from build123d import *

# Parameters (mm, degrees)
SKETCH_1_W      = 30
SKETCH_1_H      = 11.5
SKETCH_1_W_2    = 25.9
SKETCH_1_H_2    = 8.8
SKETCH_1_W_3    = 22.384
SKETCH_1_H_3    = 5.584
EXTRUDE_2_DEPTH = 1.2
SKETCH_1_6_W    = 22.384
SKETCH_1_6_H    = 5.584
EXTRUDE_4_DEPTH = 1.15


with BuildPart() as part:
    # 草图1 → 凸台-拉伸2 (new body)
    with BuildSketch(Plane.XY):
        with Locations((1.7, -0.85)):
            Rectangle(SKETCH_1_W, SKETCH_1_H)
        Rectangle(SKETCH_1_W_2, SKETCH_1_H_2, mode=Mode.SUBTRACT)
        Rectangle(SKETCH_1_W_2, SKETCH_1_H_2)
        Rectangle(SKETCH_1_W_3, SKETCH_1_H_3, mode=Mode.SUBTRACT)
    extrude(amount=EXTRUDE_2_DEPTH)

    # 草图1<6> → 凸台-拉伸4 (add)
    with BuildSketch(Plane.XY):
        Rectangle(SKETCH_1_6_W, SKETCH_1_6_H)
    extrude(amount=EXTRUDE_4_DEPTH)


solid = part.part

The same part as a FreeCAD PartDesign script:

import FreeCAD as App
import Part
import Sketcher
from FreeCAD import Vector
Q = App.Units.Quantity


def add_polygon(sketch, points):
    """Adds a closed chain of lines whose ends are joined by coincident constraints."""
    first, n = sketch.GeometryCount, len(points)
    for a, b in zip(points, points[1:] + points[:1]):
        sketch.addGeometry(Part.LineSegment(App.Vector(*a, 0), App.Vector(*b, 0)), False)
    for i in range(n):
        sketch.addConstraint(Sketcher.Constraint("Coincident", first + i, 2, first + (i + 1) % n, 1))

doc = App.newDocument("Part")
body = doc.addObject("PartDesign::Body", "Body")

sketch1 = body.newObject("Sketcher::SketchObject", "Sketch")
sketch1.AttachmentSupport = (doc.getObject("XY_Plane"), [""])
sketch1.MapMode = "FlatFace"
add_polygon(sketch1, [(-13, 5), (-13, -7), (17, -7), (17, 5)])
add_polygon(sketch1, [(11, -3), (-11, -3), (-11, 3), (11, 3)])
sketch1.addConstraint(Sketcher.Constraint("Vertical", 0))
sketch1.addConstraint(Sketcher.Constraint("Horizontal", 1))
sketch1.addConstraint(Sketcher.Constraint("Vertical", 2))
sketch1.addConstraint(Sketcher.Constraint("Horizontal", 3))
sketch1.addConstraint(Sketcher.Constraint("Horizontal", 4))
sketch1.addConstraint(Sketcher.Constraint("Vertical", 5))
sketch1.addConstraint(Sketcher.Constraint("Horizontal", 6))
sketch1.addConstraint(Sketcher.Constraint("Vertical", 7))
sketch1.addConstraint(Sketcher.Constraint("Symmetric", 4, 2, 6, 2, -1, 1))
sketch1.addConstraint(Sketcher.Constraint("DistanceX", 1, 1, 1, 2, Q("30 mm")))
sketch1.addConstraint(Sketcher.Constraint("DistanceY", 0, 2, 0, 1, Q("11.5 mm")))
sketch1.addConstraint(Sketcher.Constraint("DistanceX", 0, 2, -1, 1, Q("13.3 mm")))
sketch1.addConstraint(Sketcher.Constraint("DistanceY", 0, 2, -1, 1, Q("6.6 mm")))
sketch1.addConstraint(Sketcher.Constraint("DistanceX", 4, 2, 4, 1, Q("22.384 mm")))
sketch1.addConstraint(Sketcher.Constraint("DistanceY", 5, 1, 5, 2, Q("5.584 mm")))
pad1 = body.newObject("PartDesign::Pad", "Pad")
pad1.Profile = sketch1
pad1.Length = 1.2

sketch2 = body.newObject("Sketcher::SketchObject", "Sketch001")
sketch2.AttachmentSupport = (doc.getObject("XY_Plane"), [""])
sketch2.MapMode = "FlatFace"
add_polygon(sketch2, [(-11, 3), (-11, -3), (11, -3), (11, 3)])
sketch2.addConstraint(Sketcher.Constraint("Vertical", 0))
sketch2.addConstraint(Sketcher.Constraint("Horizontal", 1))
sketch2.addConstraint(Sketcher.Constraint("Vertical", 2))
sketch2.addConstraint(Sketcher.Constraint("Horizontal", 3))
sketch2.addConstraint(Sketcher.Constraint("Symmetric", 0, 2, 2, 2, -1, 1))
sketch2.addConstraint(Sketcher.Constraint("DistanceX", 1, 1, 1, 2, Q("22.384 mm")))
sketch2.addConstraint(Sketcher.Constraint("DistanceY", 0, 2, 0, 1, Q("5.584 mm")))
pad2 = body.newObject("PartDesign::Pad", "Pad001")
pad2.Profile = sketch2
pad2.Length = 1.15

doc.recompute()
